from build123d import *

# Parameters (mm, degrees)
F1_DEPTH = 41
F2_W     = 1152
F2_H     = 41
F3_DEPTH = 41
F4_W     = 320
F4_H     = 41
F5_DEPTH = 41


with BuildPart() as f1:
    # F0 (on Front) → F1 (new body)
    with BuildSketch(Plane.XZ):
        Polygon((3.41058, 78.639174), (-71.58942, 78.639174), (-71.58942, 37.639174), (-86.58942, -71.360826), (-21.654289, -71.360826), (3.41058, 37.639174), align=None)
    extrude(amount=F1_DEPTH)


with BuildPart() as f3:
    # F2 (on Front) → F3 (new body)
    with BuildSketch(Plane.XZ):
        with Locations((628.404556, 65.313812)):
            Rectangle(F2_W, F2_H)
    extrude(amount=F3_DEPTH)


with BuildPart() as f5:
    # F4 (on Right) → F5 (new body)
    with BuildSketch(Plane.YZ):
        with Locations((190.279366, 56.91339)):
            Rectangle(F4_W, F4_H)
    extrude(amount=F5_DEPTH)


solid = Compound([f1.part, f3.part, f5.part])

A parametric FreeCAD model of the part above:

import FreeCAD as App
import Part
import Sketcher

doc = App.newDocument("Part")
body = doc.addObject("PartDesign::Body", "Body")

# Sketch on XZ plane
sketch1 = doc.addObject("Sketcher::SketchObject", "Sketch")
body.addObject(sketch1)
sketch1.AttachmentSupport = (doc.XZ_Plane, [""])
sketch1.MapMode = "FlatFace"
sketch1.addGeometry([
    Part.LineSegment(App.Vector(3, 79, 0), App.Vector(-72, 79, 0)),  # 0
    Part.LineSegment(App.Vector(-72, 79, 0), App.Vector(-72, 38, 0)),  # 1
    Part.LineSegment(App.Vector(-72, 38, 0), App.Vector(-87, -71, 0)),  # 2
    Part.LineSegment(App.Vector(-87, -71, 0), App.Vector(-22, -71, 0)),  # 3
    Part.LineSegment(App.Vector(-22, -71, 0), App.Vector(3, 38, 0)),  # 4
    Part.LineSegment(App.Vector(3, 38, 0), App.Vector(3, 79, 0)),  # 5
], False)
sketch1.addConstraint([
    Sketcher.Constraint("Coincident", 0, 2, 1, 1),
    Sketcher.Constraint("Coincident", 1, 2, 2, 1),
    Sketcher.Constraint("Coincident", 2, 2, 3, 1),
    Sketcher.Constraint("Coincident", 3, 2, 4, 1),
    Sketcher.Constraint("Coincident", 4, 2, 5, 1),
    Sketcher.Constraint("Coincident", 5, 2, 0, 1),
    Sketcher.Constraint("Horizontal", 0),
    Sketcher.Constraint("Vertical", 1),
    Sketcher.Constraint("Horizontal", 3),
    Sketcher.Constraint("Vertical", 5),
    Sketcher.Constraint("Horizontal", 1, 2, 4, 2),
    Sketcher.Constraint("DistanceX", 0, 2, 0, 1, 75.0),
    Sketcher.Constraint("DistanceY", 1, 2, 1, 1, 41.0),
    Sketcher.Constraint("DistanceX", 2, 2, 1, 2, 15.0),
    Sketcher.Constraint("DistanceY", 2, 2, 1, 2, 109.0),
    Sketcher.Constraint("DistanceX", 3, 1, 3, 2, 64.935131),
    Sketcher.Constraint("DistanceX", 0, 2, -1, 1, 71.58942),
    Sketcher.Constraint("DistanceY", -1, 1, 0, 2, 78.639174),
])
pad1 = doc.addObject("PartDesign::Pad", "Pad")
body.addObject(pad1)
pad1.Profile = sketch1
pad1.Length = 41
body2 = doc.addObject("PartDesign::Body", "Body001")

# Sketch on XZ plane
sketch2 = doc.addObject("Sketcher::SketchObject", "Sketch001")
body2.addObject(sketch2)
sketch2.AttachmentSupport = (doc.getObject("XZ_Plane001"), [""])
sketch2.MapMode = "FlatFace"
sketch2.addGeometry([
    Part.LineSegment(App.Vector(52, 86, 0), App.Vector(52, 45, 0)),
    Part.LineSegment(App.Vector(52, 45, 0), App.Vector(1204, 45, 0)),
    Part.LineSegment(App.Vector(1204, 45, 0), App.Vector(1204, 86, 0)),
    Part.LineSegment(App.Vector(1204, 86, 0), App.Vector(52, 86, 0)),
], False)
sketch2.addConstraint([
    Sketcher.Constraint("Coincident", 0, 2, 1, 1),
    Sketcher.Constraint("Coincident", 1, 2, 2, 1),
    Sketcher.Constraint("Coincident", 2, 2, 3, 1),
    Sketcher.Constraint("Coincident", 3, 2, 0, 1),
    Sketcher.Constraint("Vertical", 0),
    Sketcher.Constraint("Horizontal", 1),
    Sketcher.Constraint("Vertical", 2),
    Sketcher.Constraint("Horizontal", 3),
    Sketcher.Constraint("DistanceX", 1, 1, 1, 2, 1152.0),
    Sketcher.Constraint("DistanceY", 0, 2, 0, 1, 41.0),
    Sketcher.Constraint("DistanceY", -1, 1, 2, 2, 85.813812),
    Sketcher.Constraint("DistanceX", -1, 1, 0, 2, 52.404556),
])
pad2 = doc.addObject("PartDesign::Pad", "Pad001")
body2.addObject(pad2)
pad2.Profile = sketch2
pad2.Length = 41
body3 = doc.addObject("PartDesign::Body", "Body002")

# Sketch on YZ plane
sketch3 = doc.addObject("Sketcher::SketchObject", "Sketch002")
body3.addObject(sketch3)
sketch3.AttachmentSupport = (doc.getObject("YZ_Plane002"), [""])
sketch3.MapMode = "FlatFace"
sketch3.addGeometry([
    Part.LineSegment(App.Vector(30, 77, 0), App.Vector(30, 36, 0)),
    Part.LineSegment(App.Vector(30, 36, 0), App.Vector(350, 36, 0)),
    Part.LineSegment(App.Vector(350, 36, 0), App.Vector(350, 77, 0)),
    Part.LineSegment(App.Vector(350, 77, 0), App.Vector(30, 77, 0)),
], False)
sketch3.addConstraint([
    Sketcher.Constraint("Coincident", 0, 2, 1, 1),
    Sketcher.Constraint("Coincident", 1, 2, 2, 1),
    Sketcher.Constraint("Coincident", 2, 2, 3, 1),
    Sketcher.Constraint("Coincident", 3, 2, 0, 1),
    Sketcher.Constraint("Vertical", 0),
    Sketcher.Constraint("Horizontal", 1),
    Sketcher.Constraint("Vertical", 2),
    Sketcher.Constraint("Horizontal", 3),
    Sketcher.Constraint("DistanceX", 1, 1, 1, 2, 320.0),
    Sketcher.Constraint("DistanceY", 0, 2, 0, 1, 41.0),
    Sketcher.Constraint("DistanceY", -1, 1, 0, 2, 36.41339),
    Sketcher.Constraint("DistanceX", -1, 1, 0, 2, 30.279366),
])
pad3 = doc.addObject("PartDesign::Pad", "Pad002")
body3.addObject(pad3)
pad3.Profile = sketch3
pad3.Length = 41

doc.recompute()
